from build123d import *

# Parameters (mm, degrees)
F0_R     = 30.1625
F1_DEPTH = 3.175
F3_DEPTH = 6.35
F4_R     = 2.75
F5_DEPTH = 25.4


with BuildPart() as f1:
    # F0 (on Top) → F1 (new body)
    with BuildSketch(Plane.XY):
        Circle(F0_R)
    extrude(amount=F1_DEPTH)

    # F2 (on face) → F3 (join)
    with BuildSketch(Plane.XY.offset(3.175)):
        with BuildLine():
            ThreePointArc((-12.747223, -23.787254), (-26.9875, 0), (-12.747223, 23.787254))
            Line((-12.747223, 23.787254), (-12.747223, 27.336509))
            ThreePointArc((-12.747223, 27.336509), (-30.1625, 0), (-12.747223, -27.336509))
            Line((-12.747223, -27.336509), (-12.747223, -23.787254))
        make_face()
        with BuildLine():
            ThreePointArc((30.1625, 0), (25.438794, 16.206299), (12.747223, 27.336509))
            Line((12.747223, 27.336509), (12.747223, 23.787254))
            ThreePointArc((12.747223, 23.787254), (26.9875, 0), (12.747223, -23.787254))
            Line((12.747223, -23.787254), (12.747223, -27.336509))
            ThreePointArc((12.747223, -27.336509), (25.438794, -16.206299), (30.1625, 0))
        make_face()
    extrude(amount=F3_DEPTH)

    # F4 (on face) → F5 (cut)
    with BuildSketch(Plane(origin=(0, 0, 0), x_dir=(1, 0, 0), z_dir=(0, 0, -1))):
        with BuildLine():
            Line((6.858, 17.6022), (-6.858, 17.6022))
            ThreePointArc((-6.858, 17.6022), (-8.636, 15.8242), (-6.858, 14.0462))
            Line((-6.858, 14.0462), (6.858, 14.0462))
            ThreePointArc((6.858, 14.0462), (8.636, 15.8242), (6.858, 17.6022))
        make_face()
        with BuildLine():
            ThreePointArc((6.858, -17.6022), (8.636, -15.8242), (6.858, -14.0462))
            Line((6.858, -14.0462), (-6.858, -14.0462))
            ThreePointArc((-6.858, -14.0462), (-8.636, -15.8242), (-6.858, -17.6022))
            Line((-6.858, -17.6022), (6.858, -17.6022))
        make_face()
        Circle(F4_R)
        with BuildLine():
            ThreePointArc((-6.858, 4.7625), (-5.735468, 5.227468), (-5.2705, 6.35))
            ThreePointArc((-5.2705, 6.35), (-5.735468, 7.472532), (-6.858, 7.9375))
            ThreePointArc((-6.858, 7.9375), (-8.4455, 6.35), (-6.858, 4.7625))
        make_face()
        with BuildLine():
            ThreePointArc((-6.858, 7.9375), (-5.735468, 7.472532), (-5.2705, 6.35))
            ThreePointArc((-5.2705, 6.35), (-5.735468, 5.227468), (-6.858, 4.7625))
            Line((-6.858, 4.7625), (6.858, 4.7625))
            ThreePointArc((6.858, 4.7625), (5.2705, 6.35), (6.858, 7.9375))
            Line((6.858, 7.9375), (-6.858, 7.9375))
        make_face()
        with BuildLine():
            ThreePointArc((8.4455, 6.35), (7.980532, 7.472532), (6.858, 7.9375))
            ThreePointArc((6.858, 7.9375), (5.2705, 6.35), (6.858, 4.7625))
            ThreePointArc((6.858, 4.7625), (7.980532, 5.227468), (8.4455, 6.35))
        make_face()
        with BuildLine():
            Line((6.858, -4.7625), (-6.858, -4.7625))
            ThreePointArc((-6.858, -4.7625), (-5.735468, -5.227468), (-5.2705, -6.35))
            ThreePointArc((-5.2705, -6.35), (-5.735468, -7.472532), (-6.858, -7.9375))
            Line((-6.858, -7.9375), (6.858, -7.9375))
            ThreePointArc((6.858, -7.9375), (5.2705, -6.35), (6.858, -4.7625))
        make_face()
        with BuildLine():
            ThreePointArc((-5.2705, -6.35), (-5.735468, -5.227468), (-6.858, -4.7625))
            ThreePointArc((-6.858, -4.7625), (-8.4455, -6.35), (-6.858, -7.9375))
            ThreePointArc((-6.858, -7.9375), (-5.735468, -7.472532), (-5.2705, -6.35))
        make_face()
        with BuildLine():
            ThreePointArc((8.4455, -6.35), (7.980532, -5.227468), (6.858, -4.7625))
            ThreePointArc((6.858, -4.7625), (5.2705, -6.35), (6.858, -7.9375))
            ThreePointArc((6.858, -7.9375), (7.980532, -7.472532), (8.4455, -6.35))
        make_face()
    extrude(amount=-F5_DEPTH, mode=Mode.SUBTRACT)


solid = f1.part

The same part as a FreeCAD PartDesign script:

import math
import FreeCAD as App
import Part
import Sketcher

V = App.Vector
Q = App.Units.Quantity

doc = App.newDocument("Part")
body = doc.addObject("PartDesign::Body", "Body")

# Sketch on XY plane
sketch1 = body.newObject("Sketcher::SketchObject", "Sketch")
sketch1.AttachmentSupport = (doc.getObject("XY_Plane"), [""])
sketch1.MapMode = "FlatFace"
sketch1.addGeometry(Part.Circle(V(0, 0, 0), V(0, 0, 1), 30), False)
sketch1.addConstraint([
    Sketcher.Constraint("Coincident", 0, 3, -1, 1),
    Sketcher.Constraint("Diameter", 0, Q("2.375 in")),
])
pad1 = body.newObject("PartDesign::Pad", "Pad")
pad1.Profile = sketch1
pad1.Length = Q("0.125 in")

# Sketch on XY plane
sketch2 = body.newObject("Sketcher::SketchObject", "Sketch001")
sketch2.AttachmentSupport = (doc.getObject("XY_Plane"), [""])
sketch2.MapMode = "FlatFace"
sketch2.AttachmentOffset = App.Placement(V(0, 0, 0.125 * 25.4), App.Rotation())
sketch2.addGeometry([
    Part.ArcOfCircle(Part.Circle(V(0, 0, 0), V(0, 0, 1), 27), math.radians(118), math.radians(242)),  # 0
    Part.LineSegment(V(-12.7, 23.8, 0), V(-12.7, 27.3, 0)),  # 1
    Part.ArcOfCircle(Part.Circle(V(0, 0, 0), V(0, 0, 1), 30.2), math.radians(115), math.radians(245)),  # 2
    Part.LineSegment(V(-12.7, -27.3, 0), V(-12.7, -23.8, 0)),  # 3
    Part.ArcOfCircle(Part.Circle(V(0, 0, 0), V(0, 0, 1), 30.2), math.radians(0), math.radians(65)),  # 4
    Part.LineSegment(V(12.7, 27.3, 0), V(12.7, 23.8, 0)),  # 5
    Part.ArcOfCircle(Part.Circle(V(0, 0, 0), V(0, 0, 1), 27), math.radians(-62), math.radians(62)),  # 6
    Part.LineSegment(V(12.7, -23.8, 0), V(12.7, -27.3, 0)),  # 7
    Part.ArcOfCircle(Part.Circle(V(0, 0, 0), V(0, 0, 1), 30.2), math.radians(-65), math.radians(0)),  # 8
], False)
sketch2.addConstraint([
    Sketcher.Constraint("Coincident", 0, 1, 1, 1),
    Sketcher.Constraint("Coincident", 1, 2, 2, 1),
    Sketcher.Constraint("Coincident", 2, 2, 3, 1),
    Sketcher.Constraint("Coincident", 3, 2, 0, 2),
    Sketcher.Constraint("Coincident", 4, 2, 5, 1),
    Sketcher.Constraint("Coincident", 5, 2, 6, 2),
    Sketcher.Constraint("Coincident", 6, 1, 7, 1),
    Sketcher.Constraint("Coincident", 7, 2, 8, 1),
    Sketcher.Constraint("Tangent", 8, 2, 4, 1),
    Sketcher.Constraint("Vertical", 1),
    Sketcher.Constraint("Vertical", 3),
    Sketcher.Constraint("Vertical", 5),
    Sketcher.Constraint("Vertical", 7),
    Sketcher.Constraint("Coincident", 0, 3, -1, 1),
    Sketcher.Constraint("Coincident", 2, 3, -1, 1),
    Sketcher.Constraint("Coincident", 4, 3, -1, 1),
    Sketcher.Constraint("Coincident", 6, 3, -1, 1),
    Sketcher.Constraint("Equal", 0, 6),
    Sketcher.Constraint("Equal", 4, 8),
    Sketcher.Constraint("Symmetric", 2, 2, 4, 2, -1, 1),
    Sketcher.Constraint("PointOnObject", 8, 2, -1),
    Sketcher.Constraint("Horizontal", 1, 2, 4, 2),
    Sketcher.Constraint("Horizontal", 3, 2, 6, 1),
    Sketcher.Constraint("Radius", 0, Q("1.0625 in")),
    Sketcher.Constraint("Radius", 2, Q("1.1875 in")),
    Sketcher.Constraint("DistanceY", 1, 1, 1, 2, Q("3.549255 mm")),
])
pad2 = body.newObject("PartDesign::Pad", "Pad001")
pad2.Profile = sketch2
pad2.Length = Q("0.25 in")

# Sketch on XY plane
sketch3 = body.newObject("Sketcher::SketchObject", "Sketch002")
sketch3.AttachmentSupport = (doc.getObject("XY_Plane"), [""])
sketch3.MapMode = "FlatFace"
sketch3.addGeometry([
    Part.LineSegment(V(6.9, -17.6, 0), V(-6.9, -17.6, 0)),  # 0
    Part.ArcOfCircle(Part.Circle(V(-6.9, -15.8, 0), V(0, 0, 1), 1.8), math.radians(90), math.radians(270)),  # 1
    Part.LineSegment(V(-6.9, -14, 0), V(6.9, -14, 0)),  # 2
    Part.ArcOfCircle(Part.Circle(V(6.9, -15.8, 0), V(0, 0, 1), 1.8), math.radians(-90), math.radians(90)),  # 3
    Part.ArcOfCircle(Part.Circle(V(6.9, 15.8, 0), V(0, 0, 1), 1.8), math.radians(-90), math.radians(90)),  # 4
    Part.LineSegment(V(6.9, 14, 0), V(-6.9, 14, 0)),  # 5
    Part.ArcOfCircle(Part.Circle(V(-6.9, 15.8, 0), V(0, 0, 1), 1.8), math.radians(90), math.radians(270)),  # 6
    Part.LineSegment(V(-6.9, 17.6, 0), V(6.9, 17.6, 0)),  # 7
    Part.Circle(V(0, 0, 0), V(0, 0, 1), 2.8),  # 8
    Part.ArcOfCircle(Part.Circle(V(-6.9, -6.3, 0), V(0, 0, 1), 1.6), math.radians(90), math.radians(270)),  # 9
    Part.LineSegment(V(-6.9, -4.8, 0), V(6.9, -4.8, 0)),  # 10
    Part.ArcOfCircle(Part.Circle(V(6.9, -6.4, 0), V(0, 0, 1), 1.6), math.radians(0), math.radians(90)),  # 11
    Part.ArcOfCircle(Part.Circle(V(6.9, -6.3, 0), V(0, 0, 1), 1.6), math.radians(-90), math.radians(0)),  # 12
    Part.LineSegment(V(6.9, -7.9, 0), V(-6.9, -7.9, 0)),  # 13
    Part.LineSegment(V(6.9, 4.8, 0), V(-6.9, 4.8, 0)),  # 14
    Part.ArcOfCircle(Part.Circle(V(-6.9, 6.3, 0), V(0, 0, 1), 1.6), math.radians(90), math.radians(270)),  # 15
    Part.LineSegment(V(-6.9, 7.9, 0), V(6.9, 7.9, 0)),  # 16
    Part.ArcOfCircle(Part.Circle(V(6.9, 6.3, 0), V(0, 0, 1), 1.6), math.radians(0), math.radians(90)),  # 17
    Part.ArcOfCircle(Part.Circle(V(6.9, 6.4, 0), V(0, 0, 1), 1.6), math.radians(-90), math.radians(0)),  # 18
], False)
sketch3.addConstraint([
    Sketcher.Constraint("Tangent", 0, 2, 1, 2),
    Sketcher.Constraint("Tangent", 1, 1, 2, 1),
    Sketcher.Constraint("Tangent", 2, 2, 3, 2),
    Sketcher.Constraint("Tangent", 3, 1, 0, 1),
    Sketcher.Constraint("Tangent", 4, 1, 5, 1),
    Sketcher.Constraint("Tangent", 5, 2, 6, 2),
    Sketcher.Constraint("Tangent", 6, 1, 7, 1),
    Sketcher.Constraint("Tangent", 7, 2, 4, 2),
    Sketcher.Constraint("Tangent", 9, 1, 10, 1),
    Sketcher.Constraint("Tangent", 10, 2, 11, 2),
    Sketcher.Constraint("Tangent", 11, 1, 12, 2),
    Sketcher.Constraint("Tangent", 12, 1, 13, 1),
    Sketcher.Constraint("Tangent", 13, 2, 9, 2),
    Sketcher.Constraint("Tangent", 14, 2, 15, 2),
    Sketcher.Constraint("Tangent", 15, 1, 16, 1),
    Sketcher.Constraint("Tangent", 16, 2, 17, 2),
    Sketcher.Constraint("Tangent", 17, 1, 18, 2),
    Sketcher.Constraint("Tangent", 18, 1, 14, 1),
    Sketcher.Constraint("Horizontal", 0),
    Sketcher.Constraint("Horizontal", 2),
    Sketcher.Constraint("Horizontal", 5),
    Sketcher.Constraint("Horizontal", 7),
    Sketcher.Constraint("Horizontal", 10),
    Sketcher.Constraint("Horizontal", 13),
    Sketcher.Constraint("Horizontal", 14),
    Sketcher.Constraint("Horizontal", 16),
    Sketcher.Constraint("Coincident", 8, 3, -1, 1),
    Sketcher.Constraint("Equal", 3, 4),
    Sketcher.Constraint("Equal", 9, 11),
    Sketcher.Constraint("Equal", 12, 15),
    Sketcher.Constraint("Equal", 15, 17),
    Sketcher.Constraint("Symmetric", 1, 3, 4, 3, -1, 1),
    Sketcher.Constraint("Symmetric", 11, 3, 15, 3, -1, 1),
    Sketcher.Constraint("Symmetric", 11, 1, 17, 1, -1),
    Sketcher.Constraint("Horizontal", 12, 3, 11, 1),
    Sketcher.Constraint("Vertical", 3, 3, 4, 3),
    Sketcher.Constraint("Vertical", 1, 3, 6, 3),
    Sketcher.Constraint("Vertical", 6, 3, 9, 3),
    Sketcher.Constraint("Vertical", 4, 3, 11, 3),
    Sketcher.Constraint("Radius", 1, Q("0.07 in")),
    Sketcher.Constraint("Radius", 9, Q("0.0625 in")),
    Sketcher.Constraint("DistanceX", 0, 2, 0, 1, Q("0.54 in")),
    Sketcher.Constraint("DistanceY", 9, 3, 15, 3, Q("0.5 in")),
    Sketcher.Constraint("Diameter", 8, Q("5.5 mm")),
    Sketcher.Constraint("DistanceY", 1, 3, -1, 1, Q("0.623 in")),
])
pocket1 = body.newObject("PartDesign::Pocket", "Pocket")
pocket1.Profile = sketch3
pocket1.Length = Q("1 in")
pocket1.Reversed = True

doc.recompute()
